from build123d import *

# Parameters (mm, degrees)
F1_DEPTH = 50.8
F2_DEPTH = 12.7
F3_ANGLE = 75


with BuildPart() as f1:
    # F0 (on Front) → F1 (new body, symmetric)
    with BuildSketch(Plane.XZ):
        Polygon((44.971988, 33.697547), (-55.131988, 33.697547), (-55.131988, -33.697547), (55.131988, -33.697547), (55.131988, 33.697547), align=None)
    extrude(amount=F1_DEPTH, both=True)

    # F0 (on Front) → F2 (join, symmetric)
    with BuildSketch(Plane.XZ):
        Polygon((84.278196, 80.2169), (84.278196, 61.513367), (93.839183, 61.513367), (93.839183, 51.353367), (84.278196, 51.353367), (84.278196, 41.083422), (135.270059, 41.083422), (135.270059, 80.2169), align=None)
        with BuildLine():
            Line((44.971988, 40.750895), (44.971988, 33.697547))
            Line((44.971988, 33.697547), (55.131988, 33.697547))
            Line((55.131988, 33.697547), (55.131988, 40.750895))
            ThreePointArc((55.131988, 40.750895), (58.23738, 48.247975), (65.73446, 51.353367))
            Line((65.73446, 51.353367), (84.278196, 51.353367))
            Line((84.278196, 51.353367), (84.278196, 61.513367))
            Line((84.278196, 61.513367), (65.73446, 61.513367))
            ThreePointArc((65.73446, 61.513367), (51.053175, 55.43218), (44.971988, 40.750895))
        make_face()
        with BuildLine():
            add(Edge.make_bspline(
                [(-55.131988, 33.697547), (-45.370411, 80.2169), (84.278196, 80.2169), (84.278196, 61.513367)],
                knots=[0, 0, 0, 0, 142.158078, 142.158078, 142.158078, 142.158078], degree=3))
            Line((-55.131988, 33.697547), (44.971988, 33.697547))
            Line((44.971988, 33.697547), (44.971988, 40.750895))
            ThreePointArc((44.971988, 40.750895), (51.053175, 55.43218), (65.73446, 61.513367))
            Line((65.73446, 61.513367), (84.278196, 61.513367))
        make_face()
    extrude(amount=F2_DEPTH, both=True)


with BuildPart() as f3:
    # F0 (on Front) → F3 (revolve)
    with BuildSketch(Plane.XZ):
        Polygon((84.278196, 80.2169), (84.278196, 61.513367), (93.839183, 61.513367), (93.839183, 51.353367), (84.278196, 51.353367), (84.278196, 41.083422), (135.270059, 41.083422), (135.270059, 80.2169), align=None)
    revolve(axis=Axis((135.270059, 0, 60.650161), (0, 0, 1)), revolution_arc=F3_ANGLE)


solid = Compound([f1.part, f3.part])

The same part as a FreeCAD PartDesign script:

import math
import FreeCAD as App
import Part
import Sketcher

V = App.Vector
Q = App.Units.Quantity

doc = App.newDocument("Part")
params = doc.addObject("Spreadsheet::Sheet", "Params")
for row, (alias, value) in enumerate([
    ("pad1_length", "4 in"),
    ("sketch2_height", "0.4 in"),
    ("pad2_length", "1 in"),
    ("sketch3_height", "0.4 in"),
    ("revolution_angle", "75 deg"),
], start=1):
    params.set(f"A{row}", alias)
    params.set(f"B{row}", "=" + value)
    params.setAlias(f"B{row}", alias)

body = doc.addObject("PartDesign::Body", "Body")
body.AllowCompound = True

# Sketch on XZ plane
sketch1 = body.newObject("Sketcher::SketchObject", "Sketch")
sketch1.AttachmentSupport = (doc.getObject("XZ_Plane"), [""])
sketch1.MapMode = "FlatFace"
sketch1.addGeometry([
    Part.LineSegment(V(-55, 34, 0), V(-55, -34, 0)),
    Part.LineSegment(V(-55, -34, 0), V(55, -34, 0)),
    Part.LineSegment(V(55, -34, 0), V(55, 34, 0)),
    Part.LineSegment(V(55, 34, 0), V(-55, 34, 0)),
], False)
sketch1.addConstraint([
    Sketcher.Constraint("Coincident", 0, 2, 1, 1),
    Sketcher.Constraint("Coincident", 1, 2, 2, 1),
    Sketcher.Constraint("Coincident", 2, 2, 3, 1),
    Sketcher.Constraint("Coincident", 3, 2, 0, 1),
    Sketcher.Constraint("Vertical", 0),
    Sketcher.Constraint("Horizontal", 1),
    Sketcher.Constraint("Vertical", 2),
    Sketcher.Constraint("Horizontal", 3),
    Sketcher.Constraint("Symmetric", 0, 2, 2, 2, -1, 1),
    Sketcher.Constraint("DistanceX", 1, 1, 1, 2, Q("110.263976 mm")),
    Sketcher.Constraint("DistanceY", 0, 2, 0, 1, Q("67.395094 mm")),
])
pad1 = body.newObject("PartDesign::Pad", "Pad")
pad1.Profile = sketch1
pad1.setExpression("Length", "Params.pad1_length")
pad1.Midplane = True

# Sketch on XZ plane
sketch2 = body.newObject("Sketcher::SketchObject", "Sketch001")
sketch2.AttachmentSupport = (doc.getObject("XZ_Plane"), [""])
sketch2.MapMode = "FlatFace"
sketch2.addGeometry([
    Part.LineSegment(V(84.278196, 80.2169, 0), V(84.278196, 61.513367, 0)),  # 0
    Part.LineSegment(V(84.278196, 61.513367, 0), V(93.839183, 61.513367, 0)),  # 1
    Part.LineSegment(V(93.839183, 61.513367, 0), V(93.839183, 51.353367, 0)),  # 2
    Part.LineSegment(V(93.839183, 51.353367, 0), V(84.278196, 51.353367, 0)),  # 3
    Part.LineSegment(V(84.278196, 51.353367, 0), V(84.278196, 41.083422, 0)),  # 4
    Part.LineSegment(V(84.278196, 41.083422, 0), V(135.270059, 41.083422, 0)),  # 5
    Part.LineSegment(V(135.270059, 41.083422, 0), V(135.270059, 80.2169, 0)),  # 6
    Part.LineSegment(V(135.270059, 80.2169, 0), V(84.278196, 80.2169, 0)),  # 7
    Part.LineSegment(V(55.131988, 33.697547, 0), V(55.131988, 40.750895, 0)),  # 8
    Part.ArcOfCircle(Part.Circle(V(65.734459, 40.750896, 0), V(0, 0, 1), 10.602471), math.radians(89.999997), math.radians(180.000003)),  # 9
    Part.LineSegment(V(65.73446, 51.353367, 0), V(84.278196, 51.353367, 0)),  # 10
    Part.LineSegment(V(84.278196, 51.353367, 0), V(84.278196, 61.513367, 0)),  # 11
    Part.BSplineCurve([V(-55.131988, 33.697547, 0), V(-45.370411, 80.2169, 0), V(84.278196, 80.2169, 0), V(84.278196, 61.513367, 0)], [4, 4], [0, 142.158078], False, 3, [1, 1, 1, 1], False),  # 12
    Part.LineSegment(V(-55.131988, 33.697547, 0), V(55.131988, 33.697547, 0)),  # 13
], False)
sketch2.addConstraint([
    Sketcher.Constraint("Block", 12),
    Sketcher.Constraint("Coincident", 0, 2, 1, 1),
    Sketcher.Constraint("Coincident", 1, 2, 2, 1),
    Sketcher.Constraint("Coincident", 2, 2, 3, 1),
    Sketcher.Constraint("Coincident", 3, 2, 4, 1),
    Sketcher.Constraint("Coincident", 4, 2, 5, 1),
    Sketcher.Constraint("Coincident", 5, 2, 6, 1),
    Sketcher.Constraint("Coincident", 6, 2, 7, 1),
    Sketcher.Constraint("Coincident", 7, 2, 0, 1),
    Sketcher.Constraint("Tangent", 8, 2, 9, 2),
    Sketcher.Constraint("Tangent", 9, 1, 10, 1),
    Sketcher.Constraint("Coincident", 10, 2, 11, 1),
    Sketcher.Constraint("Coincident", 11, 2, 12, 2),
    Sketcher.Constraint("Coincident", 12, 1, 13, 1),
    Sketcher.Constraint("Coincident", 13, 2, 8, 1),
    Sketcher.Constraint("Vertical", 0),
    Sketcher.Constraint("Horizontal", 1),
    Sketcher.Constraint("Vertical", 2),
    Sketcher.Constraint("Horizontal", 3),
    Sketcher.Constraint("Vertical", 4),
    Sketcher.Constraint("Horizontal", 5),
    Sketcher.Constraint("Vertical", 6),
    Sketcher.Constraint("Horizontal", 7),
    Sketcher.Constraint("Vertical", 8),
    Sketcher.Constraint("Horizontal", 10),
    Sketcher.Constraint("Vertical", 11),
    Sketcher.Constraint("Horizontal", 13),
    Sketcher.Constraint("Coincident", 10, 2, 3, 2),
    Sketcher.Constraint("Coincident", 11, 2, 0, 2),
    Sketcher.Constraint("DistanceY", 2, 2, 2, 1, Q("0.4 in")),
    Sketcher.Constraint("Radius", 9, Q("10.602471 mm")),
    Sketcher.Constraint("DistanceY", -1, 1, 6, 2, Q("80.2169 mm")),
    Sketcher.Constraint("DistanceX", 1, 1, 1, 2, Q("9.560987 mm")),
    Sketcher.Constraint("DistanceX", 5, 1, 5, 2, Q("50.991863 mm")),
    Sketcher.Constraint("DistanceX", 10, 1, 10, 2, Q("18.543736 mm")),
    Sketcher.Constraint("DistanceY", 4, 2, 4, 1, Q("10.269945 mm")),
])
sketch2.setExpression("Constraints[29]", "Params.sketch2_height")
pad2 = body.newObject("PartDesign::Pad", "Pad001")
pad2.Profile = sketch2
pad2.setExpression("Length", "Params.pad2_length")
pad2.Midplane = True
body2 = doc.addObject("PartDesign::Body", "Body001")

# Sketch on XZ plane
sketch3 = body2.newObject("Sketcher::SketchObject", "Sketch002")
sketch3.AttachmentSupport = (doc.getObject("XZ_Plane001"), [""])
sketch3.MapMode = "FlatFace"
sketch3.addGeometry([
    Part.LineSegment(V(84, 80, 0), V(84, 62, 0)),  # 0
    Part.LineSegment(V(84, 62, 0), V(94, 62, 0)),  # 1
    Part.LineSegment(V(94, 62, 0), V(94, 51, 0)),  # 2
    Part.LineSegment(V(94, 51, 0), V(84, 51, 0)),  # 3
    Part.LineSegment(V(84, 51, 0), V(84, 41, 0)),  # 4
    Part.LineSegment(V(84, 41, 0), V(135, 41, 0)),  # 5
    Part.LineSegment(V(135, 41, 0), V(135, 80, 0)),  # 6
    Part.LineSegment(V(135, 80, 0), V(84, 80, 0)),  # 7
], False)
sketch3.addGeometry(Part.LineSegment(V(135, 41, 0), V(135, 80, 0)), True)  # axis
sketch3.addConstraint([
    Sketcher.Constraint("Coincident", 0, 2, 1, 1),
    Sketcher.Constraint("Coincident", 1, 2, 2, 1),
    Sketcher.Constraint("Coincident", 2, 2, 3, 1),
    Sketcher.Constraint("Coincident", 3, 2, 4, 1),
    Sketcher.Constraint("Coincident", 4, 2, 5, 1),
    Sketcher.Constraint("Coincident", 5, 2, 6, 1),
    Sketcher.Constraint("Coincident", 6, 2, 7, 1),
    Sketcher.Constraint("Coincident", 7, 2, 0, 1),
    Sketcher.Constraint("Vertical", 0),
    Sketcher.Constraint("Horizontal", 1),
    Sketcher.Constraint("Vertical", 2),
    Sketcher.Constraint("Horizontal", 3),
    Sketcher.Constraint("Vertical", 4),
    Sketcher.Constraint("Horizontal", 5),
    Sketcher.Constraint("Vertical", 6),
    Sketcher.Constraint("Horizontal", 7),
    Sketcher.Constraint("Vertical", 8),
    Sketcher.Constraint("Coincident", 8, 1, 5, 2),
    Sketcher.Constraint("Horizontal", 7, 2, 8, 2),
    Sketcher.Constraint("Vertical", 0, 2, 3, 2),
    Sketcher.Constraint("DistanceY", 2, 2, 2, 1, Q("0.4 in")),
    Sketcher.Constraint("DistanceY", -1, 1, 6, 2, Q("80.2169 mm")),
    Sketcher.Constraint("DistanceX", 1, 1, 1, 2, Q("9.560987 mm")),
    Sketcher.Constraint("DistanceX", 5, 1, 5, 2, Q("50.991863 mm")),
    Sketcher.Constraint("DistanceY", 0, 2, 0, 1, Q("18.703533 mm")),
    Sketcher.Constraint("DistanceY", 4, 2, 4, 1, Q("10.269945 mm")),
    Sketcher.Constraint("DistanceX", -1, 1, 5, 2, Q("135.270059 mm")),
])
sketch3.setExpression("Constraints[20]", "Params.sketch3_height")
revolution = body2.newObject("PartDesign::Revolution", "Revolution")
revolution.Profile = sketch3
revolution.ReferenceAxis = (sketch3, ["Axis0"])
revolution.setExpression("Angle", "Params.revolution_angle")

doc.recompute()
